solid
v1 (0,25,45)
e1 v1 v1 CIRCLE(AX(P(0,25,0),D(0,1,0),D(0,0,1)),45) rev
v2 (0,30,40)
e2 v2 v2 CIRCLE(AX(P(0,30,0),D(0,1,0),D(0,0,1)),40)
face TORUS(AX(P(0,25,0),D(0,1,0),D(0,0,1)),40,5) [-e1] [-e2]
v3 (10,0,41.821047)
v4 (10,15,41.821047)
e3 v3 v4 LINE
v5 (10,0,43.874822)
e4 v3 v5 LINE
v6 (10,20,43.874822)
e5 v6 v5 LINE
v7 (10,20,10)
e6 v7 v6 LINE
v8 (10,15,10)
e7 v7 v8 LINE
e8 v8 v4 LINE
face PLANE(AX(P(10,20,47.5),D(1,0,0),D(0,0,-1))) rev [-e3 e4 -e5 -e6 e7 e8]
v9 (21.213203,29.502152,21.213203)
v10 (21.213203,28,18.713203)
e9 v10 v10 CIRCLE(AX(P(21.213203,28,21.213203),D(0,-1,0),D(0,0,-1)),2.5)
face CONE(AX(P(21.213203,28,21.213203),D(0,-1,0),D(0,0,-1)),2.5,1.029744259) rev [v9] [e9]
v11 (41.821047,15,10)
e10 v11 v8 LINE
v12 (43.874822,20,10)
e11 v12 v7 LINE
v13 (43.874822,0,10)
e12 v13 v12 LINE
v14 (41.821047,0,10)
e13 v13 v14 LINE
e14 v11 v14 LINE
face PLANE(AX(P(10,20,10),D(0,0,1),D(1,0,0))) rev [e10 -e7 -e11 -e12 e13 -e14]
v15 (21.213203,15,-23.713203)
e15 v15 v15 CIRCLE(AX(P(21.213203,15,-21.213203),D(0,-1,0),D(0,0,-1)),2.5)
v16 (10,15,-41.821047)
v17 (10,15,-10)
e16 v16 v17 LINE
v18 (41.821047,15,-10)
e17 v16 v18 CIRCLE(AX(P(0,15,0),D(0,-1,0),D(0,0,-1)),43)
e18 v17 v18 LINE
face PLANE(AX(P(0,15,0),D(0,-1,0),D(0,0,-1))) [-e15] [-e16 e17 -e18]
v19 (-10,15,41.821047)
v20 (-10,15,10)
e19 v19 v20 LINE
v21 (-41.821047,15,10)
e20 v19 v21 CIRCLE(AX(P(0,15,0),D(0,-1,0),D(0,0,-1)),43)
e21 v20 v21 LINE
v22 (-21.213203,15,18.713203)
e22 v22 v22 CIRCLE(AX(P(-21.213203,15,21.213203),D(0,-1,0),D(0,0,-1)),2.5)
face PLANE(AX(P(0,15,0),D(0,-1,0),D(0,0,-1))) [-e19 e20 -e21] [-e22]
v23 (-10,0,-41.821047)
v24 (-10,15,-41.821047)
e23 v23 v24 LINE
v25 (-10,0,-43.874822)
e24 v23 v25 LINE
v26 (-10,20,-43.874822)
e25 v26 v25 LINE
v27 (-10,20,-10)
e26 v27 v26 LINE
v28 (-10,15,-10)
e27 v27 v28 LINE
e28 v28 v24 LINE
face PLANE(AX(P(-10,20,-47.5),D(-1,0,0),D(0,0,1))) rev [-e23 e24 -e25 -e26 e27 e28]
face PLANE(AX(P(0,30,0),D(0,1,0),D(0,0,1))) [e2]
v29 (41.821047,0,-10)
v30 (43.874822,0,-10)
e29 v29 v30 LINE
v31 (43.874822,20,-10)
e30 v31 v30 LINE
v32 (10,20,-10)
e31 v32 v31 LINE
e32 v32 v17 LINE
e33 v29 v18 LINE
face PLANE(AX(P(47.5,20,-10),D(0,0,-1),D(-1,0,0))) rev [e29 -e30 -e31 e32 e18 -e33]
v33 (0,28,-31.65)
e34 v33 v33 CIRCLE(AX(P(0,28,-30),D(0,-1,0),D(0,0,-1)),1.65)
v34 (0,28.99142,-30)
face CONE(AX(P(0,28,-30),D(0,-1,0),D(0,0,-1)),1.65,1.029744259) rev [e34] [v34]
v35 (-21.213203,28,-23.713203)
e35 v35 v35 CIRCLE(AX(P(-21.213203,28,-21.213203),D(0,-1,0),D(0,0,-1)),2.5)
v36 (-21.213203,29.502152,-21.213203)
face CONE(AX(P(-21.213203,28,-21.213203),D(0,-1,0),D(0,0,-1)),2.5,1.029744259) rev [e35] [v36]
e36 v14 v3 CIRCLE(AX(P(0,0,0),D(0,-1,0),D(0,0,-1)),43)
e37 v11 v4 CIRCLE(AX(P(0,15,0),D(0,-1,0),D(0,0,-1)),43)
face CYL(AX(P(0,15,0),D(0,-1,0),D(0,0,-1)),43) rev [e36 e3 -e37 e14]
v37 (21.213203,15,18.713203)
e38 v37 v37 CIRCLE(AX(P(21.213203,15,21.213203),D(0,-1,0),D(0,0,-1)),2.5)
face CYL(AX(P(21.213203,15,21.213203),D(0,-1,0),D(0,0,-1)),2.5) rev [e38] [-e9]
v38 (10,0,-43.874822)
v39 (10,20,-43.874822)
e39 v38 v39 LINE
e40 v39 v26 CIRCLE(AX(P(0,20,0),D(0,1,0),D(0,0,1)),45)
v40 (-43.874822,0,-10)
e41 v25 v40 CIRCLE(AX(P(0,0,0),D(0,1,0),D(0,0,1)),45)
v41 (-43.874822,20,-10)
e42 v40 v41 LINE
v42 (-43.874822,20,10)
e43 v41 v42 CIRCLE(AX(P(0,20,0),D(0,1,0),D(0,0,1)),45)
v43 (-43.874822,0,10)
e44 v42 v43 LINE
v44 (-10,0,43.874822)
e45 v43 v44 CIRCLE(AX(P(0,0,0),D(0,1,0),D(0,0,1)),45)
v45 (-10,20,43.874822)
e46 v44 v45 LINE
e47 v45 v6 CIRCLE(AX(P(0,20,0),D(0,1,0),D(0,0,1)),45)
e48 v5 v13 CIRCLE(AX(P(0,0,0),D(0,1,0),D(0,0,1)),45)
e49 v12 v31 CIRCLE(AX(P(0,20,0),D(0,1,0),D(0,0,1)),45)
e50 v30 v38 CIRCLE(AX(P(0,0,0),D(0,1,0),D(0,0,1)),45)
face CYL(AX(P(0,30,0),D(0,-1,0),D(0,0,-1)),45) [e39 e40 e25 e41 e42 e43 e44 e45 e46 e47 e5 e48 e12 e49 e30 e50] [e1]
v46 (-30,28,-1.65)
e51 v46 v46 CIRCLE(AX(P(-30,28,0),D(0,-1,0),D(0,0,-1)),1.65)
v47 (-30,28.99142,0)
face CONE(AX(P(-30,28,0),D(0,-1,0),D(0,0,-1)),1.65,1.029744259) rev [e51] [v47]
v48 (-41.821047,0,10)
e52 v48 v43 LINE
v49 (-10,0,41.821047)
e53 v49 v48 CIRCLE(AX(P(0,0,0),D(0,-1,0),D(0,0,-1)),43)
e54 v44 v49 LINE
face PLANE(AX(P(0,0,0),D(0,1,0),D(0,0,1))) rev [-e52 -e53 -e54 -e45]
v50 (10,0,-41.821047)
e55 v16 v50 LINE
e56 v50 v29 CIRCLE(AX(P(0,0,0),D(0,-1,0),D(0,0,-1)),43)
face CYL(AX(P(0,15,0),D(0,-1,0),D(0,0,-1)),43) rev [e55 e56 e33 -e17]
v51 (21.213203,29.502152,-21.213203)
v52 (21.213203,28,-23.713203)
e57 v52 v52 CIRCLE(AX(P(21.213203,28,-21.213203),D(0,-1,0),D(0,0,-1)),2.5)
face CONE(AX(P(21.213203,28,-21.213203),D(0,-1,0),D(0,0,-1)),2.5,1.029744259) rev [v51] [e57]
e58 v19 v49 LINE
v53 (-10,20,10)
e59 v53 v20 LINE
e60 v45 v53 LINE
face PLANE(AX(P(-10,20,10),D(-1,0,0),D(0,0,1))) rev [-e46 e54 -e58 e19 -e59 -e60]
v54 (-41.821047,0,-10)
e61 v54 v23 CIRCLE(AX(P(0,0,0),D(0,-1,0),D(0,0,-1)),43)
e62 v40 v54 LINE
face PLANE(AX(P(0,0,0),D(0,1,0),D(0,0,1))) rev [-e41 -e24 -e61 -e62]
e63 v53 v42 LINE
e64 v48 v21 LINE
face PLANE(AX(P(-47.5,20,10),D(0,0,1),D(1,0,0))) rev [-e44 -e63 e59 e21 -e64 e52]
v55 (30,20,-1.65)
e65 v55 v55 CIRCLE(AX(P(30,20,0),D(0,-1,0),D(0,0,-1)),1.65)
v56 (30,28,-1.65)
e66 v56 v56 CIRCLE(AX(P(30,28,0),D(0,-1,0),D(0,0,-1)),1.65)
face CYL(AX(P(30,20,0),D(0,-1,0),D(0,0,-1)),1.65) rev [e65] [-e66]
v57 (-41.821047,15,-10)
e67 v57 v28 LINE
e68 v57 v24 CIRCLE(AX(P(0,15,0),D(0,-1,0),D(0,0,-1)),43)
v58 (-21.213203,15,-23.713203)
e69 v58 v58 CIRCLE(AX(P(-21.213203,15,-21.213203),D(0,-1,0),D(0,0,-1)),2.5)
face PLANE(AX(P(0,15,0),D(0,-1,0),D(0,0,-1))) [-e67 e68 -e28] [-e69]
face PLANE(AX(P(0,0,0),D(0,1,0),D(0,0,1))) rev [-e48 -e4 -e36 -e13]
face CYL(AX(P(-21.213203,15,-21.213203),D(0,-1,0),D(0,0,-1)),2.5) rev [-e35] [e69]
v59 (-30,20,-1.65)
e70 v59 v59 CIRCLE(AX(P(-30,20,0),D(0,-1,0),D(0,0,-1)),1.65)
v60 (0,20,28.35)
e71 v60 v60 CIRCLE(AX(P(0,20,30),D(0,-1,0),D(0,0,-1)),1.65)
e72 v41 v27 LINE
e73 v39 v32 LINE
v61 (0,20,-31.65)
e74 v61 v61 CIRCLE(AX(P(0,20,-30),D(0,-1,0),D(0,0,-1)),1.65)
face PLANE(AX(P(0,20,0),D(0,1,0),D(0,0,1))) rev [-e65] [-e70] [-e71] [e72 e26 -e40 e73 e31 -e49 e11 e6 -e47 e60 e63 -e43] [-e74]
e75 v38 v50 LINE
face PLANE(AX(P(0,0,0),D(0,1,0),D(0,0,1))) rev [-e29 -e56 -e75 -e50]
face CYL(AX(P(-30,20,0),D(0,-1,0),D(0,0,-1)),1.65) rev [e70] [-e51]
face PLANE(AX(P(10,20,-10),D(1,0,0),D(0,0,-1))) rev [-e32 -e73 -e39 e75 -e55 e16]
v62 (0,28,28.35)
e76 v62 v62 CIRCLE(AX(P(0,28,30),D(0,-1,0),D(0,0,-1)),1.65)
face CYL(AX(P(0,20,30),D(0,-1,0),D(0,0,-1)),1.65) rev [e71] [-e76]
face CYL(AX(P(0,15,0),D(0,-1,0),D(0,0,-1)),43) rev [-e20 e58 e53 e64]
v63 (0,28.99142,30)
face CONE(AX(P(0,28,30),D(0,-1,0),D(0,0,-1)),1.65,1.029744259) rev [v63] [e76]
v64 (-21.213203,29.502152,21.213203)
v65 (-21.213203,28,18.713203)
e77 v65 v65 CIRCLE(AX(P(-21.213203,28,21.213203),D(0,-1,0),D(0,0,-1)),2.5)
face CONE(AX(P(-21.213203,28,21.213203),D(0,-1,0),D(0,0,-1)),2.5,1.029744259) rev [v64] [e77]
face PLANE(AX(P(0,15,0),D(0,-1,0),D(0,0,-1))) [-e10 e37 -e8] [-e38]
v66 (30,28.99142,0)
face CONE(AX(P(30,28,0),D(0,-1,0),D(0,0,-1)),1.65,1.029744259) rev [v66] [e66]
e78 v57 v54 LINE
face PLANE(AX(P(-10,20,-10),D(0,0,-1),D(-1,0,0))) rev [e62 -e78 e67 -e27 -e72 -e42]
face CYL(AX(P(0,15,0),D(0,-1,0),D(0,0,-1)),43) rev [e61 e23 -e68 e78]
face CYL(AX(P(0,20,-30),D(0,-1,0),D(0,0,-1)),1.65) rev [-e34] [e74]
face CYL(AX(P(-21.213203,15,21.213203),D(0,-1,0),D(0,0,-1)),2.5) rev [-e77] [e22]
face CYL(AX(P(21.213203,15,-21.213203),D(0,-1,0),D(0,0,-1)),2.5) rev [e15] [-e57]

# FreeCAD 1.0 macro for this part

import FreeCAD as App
import Part
import Sketcher
Q = App.Units.Quantity


def edges_at(feature, points):
    """Names of the edges that pass closest to the given points."""
    edges = feature.Shape.Edges
    near = lambda p: min(range(len(edges)), key=lambda i: edges[i].distToShape(Part.Vertex(*p))[0])
    return sorted({f"Edge{near(p) + 1}" for p in points})

doc = App.newDocument("Part")
body = doc.addObject("PartDesign::Body", "Body")

# Sketch on XZ plane
sketch1 = doc.addObject("Sketcher::SketchObject", "Sketch")
body.addObject(sketch1)
sketch1.AttachmentSupport = (doc.XZ_Plane, [""])
sketch1.MapMode = "FlatFace"
sketch1.addGeometry(Part.Circle(App.Vector(0, 0, 0), App.Vector(0, 0, 1), 45), False)
sketch1.addConstraint(Sketcher.Constraint("Coincident", 0, 3, -1, 1))
sketch1.addConstraint(Sketcher.Constraint("Diameter", 0, Q("90 mm")))
pad1 = doc.addObject("PartDesign::Pad", "Pad")
body.addObject(pad1)
pad1.Profile = sketch1
pad1.Length = 30
pad1.Reversed = True

# Sketch on XZ plane
sketch2 = doc.addObject("Sketcher::SketchObject", "Sketch001")
body.addObject(sketch2)
sketch2.AttachmentSupport = (doc.XZ_Plane, [""])
sketch2.MapMode = "FlatFace"
sketch2.addGeometry(Part.Circle(App.Vector(0, 0, 0), App.Vector(0, 0, 1), 43), False)
sketch2.addConstraint(Sketcher.Constraint("Coincident", 0, 3, -1, 1))
sketch2.addConstraint(Sketcher.Constraint("Diameter", 0, Q("86 mm")))
pocket1 = doc.addObject("PartDesign::Pocket", "Pocket")
body.addObject(pocket1)
pocket1.Profile = sketch2
pocket1.Length = 15

# Sketch on XZ plane
sketch3 = doc.addObject("Sketcher::SketchObject", "Sketch002")
body.addObject(sketch3)
sketch3.AttachmentSupport = (doc.XZ_Plane, [""])
sketch3.MapMode = "FlatFace"
sketch3.addGeometry(Part.LineSegment(App.Vector(-10, 10, 0), App.Vector(-48, 10, 0)), False)
sketch3.addGeometry(Part.LineSegment(App.Vector(-48, 10, 0), App.Vector(-48, -10, 0)), False)
sketch3.addGeometry(Part.LineSegment(App.Vector(-48, -10, 0), App.Vector(-10, -10, 0)), False)
sketch3.addGeometry(Part.LineSegment(App.Vector(-10, -10, 0), App.Vector(-10, -48, 0)), False)
sketch3.addGeometry(Part.LineSegment(App.Vector(-10, -48, 0), App.Vector(10, -48, 0)), False)
sketch3.addGeometry(Part.LineSegment(App.Vector(10, -48, 0), App.Vector(10, -10, 0)), False)
sketch3.addGeometry(Part.LineSegment(App.Vector(10, -10, 0), App.Vector(48, -10, 0)), False)
sketch3.addGeometry(Part.LineSegment(App.Vector(48, -10, 0), App.Vector(48, 10, 0)), False)
sketch3.addGeometry(Part.LineSegment(App.Vector(48, 10, 0), App.Vector(10, 10, 0)), False)
sketch3.addGeometry(Part.LineSegment(App.Vector(10, 10, 0), App.Vector(10, 48, 0)), False)
sketch3.addGeometry(Part.LineSegment(App.Vector(10, 48, 0), App.Vector(-10, 48, 0)), False)
sketch3.addGeometry(Part.LineSegment(App.Vector(-10, 48, 0), App.Vector(-10, 10, 0)), False)
sketch3.addConstraint(Sketcher.Constraint("Coincident", 0, 2, 1, 1))
sketch3.addConstraint(Sketcher.Constraint("Coincident", 1, 2, 2, 1))
sketch3.addConstraint(Sketcher.Constraint("Coincident", 2, 2, 3, 1))
sketch3.addConstraint(Sketcher.Constraint("Coincident", 3, 2, 4, 1))
sketch3.addConstraint(Sketcher.Constraint("Coincident", 4, 2, 5, 1))
sketch3.addConstraint(Sketcher.Constraint("Coincident", 5, 2, 6, 1))
sketch3.addConstraint(Sketcher.Constraint("Coincident", 6, 2, 7, 1))
sketch3.addConstraint(Sketcher.Constraint("Coincident", 7, 2, 8, 1))
sketch3.addConstraint(Sketcher.Constraint("Coincident", 8, 2, 9, 1))
sketch3.addConstraint(Sketcher.Constraint("Coincident", 9, 2, 10, 1))
sketch3.addConstraint(Sketcher.Constraint("Coincident", 10, 2, 11, 1))
sketch3.addConstraint(Sketcher.Constraint("Coincident", 11, 2, 0, 1))
sketch3.addConstraint(Sketcher.Constraint("Horizontal", 0))
sketch3.addConstraint(Sketcher.Constraint("Vertical", 1))
sketch3.addConstraint(Sketcher.Constraint("Horizontal", 2))
sketch3.addConstraint(Sketcher.Constraint("Vertical", 3))
sketch3.addConstraint(Sketcher.Constraint("Horizontal", 4))
sketch3.addConstraint(Sketcher.Constraint("Vertical", 5))
sketch3.addConstraint(Sketcher.Constraint("Horizontal", 6))
sketch3.addConstraint(Sketcher.Constraint("Vertical", 7))
sketch3.addConstraint(Sketcher.Constraint("Horizontal", 8))
sketch3.addConstraint(Sketcher.Constraint("Vertical", 9))
sketch3.addConstraint(Sketcher.Constraint("Horizontal", 10))
sketch3.addConstraint(Sketcher.Constraint("Vertical", 11))
sketch3.addConstraint(Sketcher.Constraint("Symmetric", 0, 2, 6, 2, -1, 1))
sketch3.addConstraint(Sketcher.Constraint("Symmetric", 2, 2, 8, 2, -1, 1))
sketch3.addConstraint(Sketcher.Constraint("Symmetric", 4, 2, 10, 2, -1, 1))
sketch3.addConstraint(Sketcher.Constraint("Symmetric", 2, 2, 5, 2, -2))
sketch3.addConstraint(Sketcher.Constraint("Equal", 10, 1))
sketch3.addConstraint(Sketcher.Constraint("Equal", 8, 3))
sketch3.addConstraint(Sketcher.Constraint("DistanceX", 4, 1, 4, 2, Q("20 mm")))
sketch3.addConstraint(Sketcher.Constraint("DistanceX", 0, 2, 0, 1, Q("37.5 mm")))
pocket2 = doc.addObject("PartDesign::Pocket", "Pocket001")
body.addObject(pocket2)
pocket2.Profile = sketch3
pocket2.Length = 20
doc.recompute()

fillet = doc.addObject("PartDesign::Fillet", "Fillet")
body.addObject(fillet)
fillet.Base = (pocket2, edges_at(pocket2, [(0, 30, -45)]))
fillet.Radius = 5

# Sketch on XZ plane
sketch4 = doc.addObject("Sketcher::SketchObject", "Sketch003")
body.addObject(sketch4)
sketch4.AttachmentSupport = (doc.XZ_Plane, [""])
sketch4.MapMode = "FlatFace"
sketch4.AttachmentOffset = App.Placement(App.Vector(0, 0, -15), App.Rotation())
sketch4.addGeometry(Part.Circle(App.Vector(-21.2, 21.2, 0), App.Vector(0, 0, 1), 2.5), False)
sketch4.addGeometry(Part.Circle(App.Vector(21.2, -21.2, 0), App.Vector(0, 0, 1), 2.5), False)
sketch4.addGeometry(Part.Circle(App.Vector(21.2, 21.2, 0), App.Vector(0, 0, 1), 2.5), False)
sketch4.addGeometry(Part.Circle(App.Vector(-21.2, -21.2, 0), App.Vector(0, 0, 1), 2.5), False)
sketch4.addConstraint(Sketcher.Constraint("Equal", 0, 1))
sketch4.addConstraint(Sketcher.Constraint("Equal", 1, 2))
sketch4.addConstraint(Sketcher.Constraint("Equal", 2, 3))
sketch4.addConstraint(Sketcher.Constraint("Symmetric", 0, 3, 1, 3, -1, 1))
sketch4.addConstraint(Sketcher.Constraint("Symmetric", 2, 3, 3, 3, -1, 1))
sketch4.addConstraint(Sketcher.Constraint("Symmetric", 0, 3, 2, 3, -2))
sketch4.addConstraint(Sketcher.Constraint("Diameter", 0, Q("5 mm")))
sketch4.addConstraint(Sketcher.Constraint("DistanceX", 0, 3, -1, 1, Q("21.213203 mm")))
sketch4.addConstraint(Sketcher.Constraint("DistanceY", -1, 1, 0, 3, Q("21.213203 mm")))
doc.recompute()
hole = doc.addObject("PartDesign::Hole", "Hole")
body.addObject(hole)
hole.Profile = sketch4
hole.ThreadType = "None"
hole.Diameter = 5
hole.DepthType = "Dimension"
hole.Depth = 13
hole.DrillPoint = "Angled"
hole.DrillPointAngle = 118

# Sketch on XZ plane
sketch5 = doc.addObject("Sketcher::SketchObject", "Sketch004")
body.addObject(sketch5)
sketch5.AttachmentSupport = (doc.XZ_Plane, [""])
sketch5.MapMode = "FlatFace"
sketch5.AttachmentOffset = App.Placement(App.Vector(0, 0, -20), App.Rotation())
sketch5.addGeometry(Part.Circle(App.Vector(0, 30, 0), App.Vector(0, 0, 1), 1.6), False)
sketch5.addGeometry(Part.Circle(App.Vector(0, -30, 0), App.Vector(0, 0, 1), 1.6), False)
sketch5.addGeometry(Part.Circle(App.Vector(-30, 0, 0), App.Vector(0, 0, 1), 1.6), False)
sketch5.addGeometry(Part.Circle(App.Vector(30, 0, 0), App.Vector(0, 0, 1), 1.6), False)
sketch5.addConstraint(Sketcher.Constraint("Equal", 0, 1))
sketch5.addConstraint(Sketcher.Constraint("Equal", 1, 2))
sketch5.addConstraint(Sketcher.Constraint("Equal", 2, 3))
sketch5.addConstraint(Sketcher.Constraint("Symmetric", 0, 3, 1, 3, -1, 1))
sketch5.addConstraint(Sketcher.Constraint("Symmetric", 2, 3, 3, 3, -1, 1))
sketch5.addConstraint(Sketcher.Constraint("PointOnObject", 0, 3, -2))
sketch5.addConstraint(Sketcher.Constraint("PointOnObject", 2, 3, -1))
sketch5.addConstraint(Sketcher.Constraint("Diameter", 0, Q("3.3 mm")))
sketch5.addConstraint(Sketcher.Constraint("DistanceY", -1, 1, 0, 3, Q("30 mm")))
sketch5.addConstraint(Sketcher.Constraint("DistanceX", 2, 3, -1, 1, Q("30 mm")))
doc.recompute()
hole2 = doc.addObject("PartDesign::Hole", "Hole001")
body.addObject(hole2)
hole2.Profile = sketch5
hole2.ThreadType = "None"
hole2.Diameter = 3.3
hole2.DepthType = "Dimension"
hole2.Depth = 8
hole2.DrillPoint = "Angled"
hole2.DrillPointAngle = 118

doc.recompute()
